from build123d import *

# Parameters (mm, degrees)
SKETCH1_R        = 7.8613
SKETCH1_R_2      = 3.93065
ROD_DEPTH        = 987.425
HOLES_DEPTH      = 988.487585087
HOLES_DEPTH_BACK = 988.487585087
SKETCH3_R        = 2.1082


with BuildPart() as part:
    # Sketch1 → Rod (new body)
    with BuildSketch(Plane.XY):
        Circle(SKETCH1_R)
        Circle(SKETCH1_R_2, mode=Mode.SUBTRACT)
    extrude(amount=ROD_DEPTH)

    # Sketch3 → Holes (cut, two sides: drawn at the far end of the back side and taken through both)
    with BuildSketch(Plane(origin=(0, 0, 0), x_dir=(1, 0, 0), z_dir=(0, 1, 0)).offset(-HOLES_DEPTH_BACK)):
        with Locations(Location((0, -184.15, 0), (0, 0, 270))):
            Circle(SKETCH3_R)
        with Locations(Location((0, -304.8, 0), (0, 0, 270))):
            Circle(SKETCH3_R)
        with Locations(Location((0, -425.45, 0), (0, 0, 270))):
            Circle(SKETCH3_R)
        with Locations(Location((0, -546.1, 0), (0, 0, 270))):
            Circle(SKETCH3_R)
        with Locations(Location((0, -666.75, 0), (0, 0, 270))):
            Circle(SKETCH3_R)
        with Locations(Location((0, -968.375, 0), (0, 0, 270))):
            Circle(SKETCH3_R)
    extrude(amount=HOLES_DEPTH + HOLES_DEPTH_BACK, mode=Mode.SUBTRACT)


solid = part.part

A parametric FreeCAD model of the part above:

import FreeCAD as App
import Part
import Sketcher
from FreeCAD import Vector
Q = App.Units.Quantity

doc = App.newDocument("Part")
body = doc.addObject("PartDesign::Body", "Body")

sketch1 = body.newObject("Sketcher::SketchObject", "Sketch")
sketch1.AttachmentSupport = (doc.getObject("XY_Plane"), [""])
sketch1.MapMode = "FlatFace"
sketch1.addGeometry([
    Part.Circle(Vector(0, 0, 0), Vector(0, 0, 1), 7.8613),
    Part.Circle(Vector(0, 0, 0), Vector(0, 0, 1), 3.93065),
], False)
sketch1.addConstraint([
    Sketcher.Constraint("Coincident", 0, 3, -1, 1),
    Sketcher.Constraint("Coincident", 1, 3, -1, 1),
    Sketcher.Constraint("Diameter", 0, Q("0.619 in")),
    Sketcher.Constraint("Diameter", 1, Q("0.3095 in")),
])
pad1 = body.newObject("PartDesign::Pad", "Pad")
pad1.Profile = sketch1
pad1.Length = Q("38.875 in")

sketch2 = body.newObject("Sketcher::SketchObject", "Sketch001")
sketch2.AttachmentSupport = (doc.getObject("XZ_Plane"), [""])
sketch2.MapMode = "FlatFace"
sketch2.addGeometry([
    Part.Circle(Vector(0, 184.15, 0), Vector(0, 0, 1), 2.1082),
    Part.Circle(Vector(0, 304.8, 0), Vector(0, 0, 1), 2.1082),
    Part.Circle(Vector(0, 425.45, 0), Vector(0, 0, 1), 2.1082),
    Part.Circle(Vector(0, 546.1, 0), Vector(0, 0, 1), 2.1082),
    Part.Circle(Vector(0, 666.75, 0), Vector(0, 0, 1), 2.1082),
    Part.Circle(Vector(0, 968.375, 0), Vector(0, 0, 1), 2.1082),
], False)
sketch2.addConstraint([
    Sketcher.Constraint("Equal", 0, 1),
    Sketcher.Constraint("Equal", 1, 2),
    Sketcher.Constraint("Equal", 2, 3),
    Sketcher.Constraint("Equal", 3, 4),
    Sketcher.Constraint("Equal", 4, 5),
    Sketcher.Constraint("PointOnObject", 0, 3, -2),
    Sketcher.Constraint("PointOnObject", 1, 3, -2),
    Sketcher.Constraint("PointOnObject", 2, 3, -2),
    Sketcher.Constraint("PointOnObject", 3, 3, -2),
    Sketcher.Constraint("PointOnObject", 4, 3, -2),
    Sketcher.Constraint("PointOnObject", 5, 3, -2),
    Sketcher.Constraint("Diameter", 0, Q("0.166 in")),
    Sketcher.Constraint("DistanceY", -1, 1, 1, 3, Q("12 in")),
    Sketcher.Constraint("DistanceY", 0, 3, 4, 3, Q("19 in")),
    Sketcher.Constraint("DistanceY", -1, 1, 3, 3, Q("21.5 in")),
    Sketcher.Constraint("DistanceY", 0, 3, 2, 3, Q("9.5 in")),
    Sketcher.Constraint("DistanceY", -1, 1, 0, 3, Q("7.25 in")),
    Sketcher.Constraint("DistanceY", -1, 1, 5, 3, Q("38.125 in")),
])
pocket1 = body.newObject("PartDesign::Pocket", "Pocket")
pocket1.Profile = sketch2
pocket1.Type = "ThroughAll"
pocket1.Midplane = True

doc.recompute()
